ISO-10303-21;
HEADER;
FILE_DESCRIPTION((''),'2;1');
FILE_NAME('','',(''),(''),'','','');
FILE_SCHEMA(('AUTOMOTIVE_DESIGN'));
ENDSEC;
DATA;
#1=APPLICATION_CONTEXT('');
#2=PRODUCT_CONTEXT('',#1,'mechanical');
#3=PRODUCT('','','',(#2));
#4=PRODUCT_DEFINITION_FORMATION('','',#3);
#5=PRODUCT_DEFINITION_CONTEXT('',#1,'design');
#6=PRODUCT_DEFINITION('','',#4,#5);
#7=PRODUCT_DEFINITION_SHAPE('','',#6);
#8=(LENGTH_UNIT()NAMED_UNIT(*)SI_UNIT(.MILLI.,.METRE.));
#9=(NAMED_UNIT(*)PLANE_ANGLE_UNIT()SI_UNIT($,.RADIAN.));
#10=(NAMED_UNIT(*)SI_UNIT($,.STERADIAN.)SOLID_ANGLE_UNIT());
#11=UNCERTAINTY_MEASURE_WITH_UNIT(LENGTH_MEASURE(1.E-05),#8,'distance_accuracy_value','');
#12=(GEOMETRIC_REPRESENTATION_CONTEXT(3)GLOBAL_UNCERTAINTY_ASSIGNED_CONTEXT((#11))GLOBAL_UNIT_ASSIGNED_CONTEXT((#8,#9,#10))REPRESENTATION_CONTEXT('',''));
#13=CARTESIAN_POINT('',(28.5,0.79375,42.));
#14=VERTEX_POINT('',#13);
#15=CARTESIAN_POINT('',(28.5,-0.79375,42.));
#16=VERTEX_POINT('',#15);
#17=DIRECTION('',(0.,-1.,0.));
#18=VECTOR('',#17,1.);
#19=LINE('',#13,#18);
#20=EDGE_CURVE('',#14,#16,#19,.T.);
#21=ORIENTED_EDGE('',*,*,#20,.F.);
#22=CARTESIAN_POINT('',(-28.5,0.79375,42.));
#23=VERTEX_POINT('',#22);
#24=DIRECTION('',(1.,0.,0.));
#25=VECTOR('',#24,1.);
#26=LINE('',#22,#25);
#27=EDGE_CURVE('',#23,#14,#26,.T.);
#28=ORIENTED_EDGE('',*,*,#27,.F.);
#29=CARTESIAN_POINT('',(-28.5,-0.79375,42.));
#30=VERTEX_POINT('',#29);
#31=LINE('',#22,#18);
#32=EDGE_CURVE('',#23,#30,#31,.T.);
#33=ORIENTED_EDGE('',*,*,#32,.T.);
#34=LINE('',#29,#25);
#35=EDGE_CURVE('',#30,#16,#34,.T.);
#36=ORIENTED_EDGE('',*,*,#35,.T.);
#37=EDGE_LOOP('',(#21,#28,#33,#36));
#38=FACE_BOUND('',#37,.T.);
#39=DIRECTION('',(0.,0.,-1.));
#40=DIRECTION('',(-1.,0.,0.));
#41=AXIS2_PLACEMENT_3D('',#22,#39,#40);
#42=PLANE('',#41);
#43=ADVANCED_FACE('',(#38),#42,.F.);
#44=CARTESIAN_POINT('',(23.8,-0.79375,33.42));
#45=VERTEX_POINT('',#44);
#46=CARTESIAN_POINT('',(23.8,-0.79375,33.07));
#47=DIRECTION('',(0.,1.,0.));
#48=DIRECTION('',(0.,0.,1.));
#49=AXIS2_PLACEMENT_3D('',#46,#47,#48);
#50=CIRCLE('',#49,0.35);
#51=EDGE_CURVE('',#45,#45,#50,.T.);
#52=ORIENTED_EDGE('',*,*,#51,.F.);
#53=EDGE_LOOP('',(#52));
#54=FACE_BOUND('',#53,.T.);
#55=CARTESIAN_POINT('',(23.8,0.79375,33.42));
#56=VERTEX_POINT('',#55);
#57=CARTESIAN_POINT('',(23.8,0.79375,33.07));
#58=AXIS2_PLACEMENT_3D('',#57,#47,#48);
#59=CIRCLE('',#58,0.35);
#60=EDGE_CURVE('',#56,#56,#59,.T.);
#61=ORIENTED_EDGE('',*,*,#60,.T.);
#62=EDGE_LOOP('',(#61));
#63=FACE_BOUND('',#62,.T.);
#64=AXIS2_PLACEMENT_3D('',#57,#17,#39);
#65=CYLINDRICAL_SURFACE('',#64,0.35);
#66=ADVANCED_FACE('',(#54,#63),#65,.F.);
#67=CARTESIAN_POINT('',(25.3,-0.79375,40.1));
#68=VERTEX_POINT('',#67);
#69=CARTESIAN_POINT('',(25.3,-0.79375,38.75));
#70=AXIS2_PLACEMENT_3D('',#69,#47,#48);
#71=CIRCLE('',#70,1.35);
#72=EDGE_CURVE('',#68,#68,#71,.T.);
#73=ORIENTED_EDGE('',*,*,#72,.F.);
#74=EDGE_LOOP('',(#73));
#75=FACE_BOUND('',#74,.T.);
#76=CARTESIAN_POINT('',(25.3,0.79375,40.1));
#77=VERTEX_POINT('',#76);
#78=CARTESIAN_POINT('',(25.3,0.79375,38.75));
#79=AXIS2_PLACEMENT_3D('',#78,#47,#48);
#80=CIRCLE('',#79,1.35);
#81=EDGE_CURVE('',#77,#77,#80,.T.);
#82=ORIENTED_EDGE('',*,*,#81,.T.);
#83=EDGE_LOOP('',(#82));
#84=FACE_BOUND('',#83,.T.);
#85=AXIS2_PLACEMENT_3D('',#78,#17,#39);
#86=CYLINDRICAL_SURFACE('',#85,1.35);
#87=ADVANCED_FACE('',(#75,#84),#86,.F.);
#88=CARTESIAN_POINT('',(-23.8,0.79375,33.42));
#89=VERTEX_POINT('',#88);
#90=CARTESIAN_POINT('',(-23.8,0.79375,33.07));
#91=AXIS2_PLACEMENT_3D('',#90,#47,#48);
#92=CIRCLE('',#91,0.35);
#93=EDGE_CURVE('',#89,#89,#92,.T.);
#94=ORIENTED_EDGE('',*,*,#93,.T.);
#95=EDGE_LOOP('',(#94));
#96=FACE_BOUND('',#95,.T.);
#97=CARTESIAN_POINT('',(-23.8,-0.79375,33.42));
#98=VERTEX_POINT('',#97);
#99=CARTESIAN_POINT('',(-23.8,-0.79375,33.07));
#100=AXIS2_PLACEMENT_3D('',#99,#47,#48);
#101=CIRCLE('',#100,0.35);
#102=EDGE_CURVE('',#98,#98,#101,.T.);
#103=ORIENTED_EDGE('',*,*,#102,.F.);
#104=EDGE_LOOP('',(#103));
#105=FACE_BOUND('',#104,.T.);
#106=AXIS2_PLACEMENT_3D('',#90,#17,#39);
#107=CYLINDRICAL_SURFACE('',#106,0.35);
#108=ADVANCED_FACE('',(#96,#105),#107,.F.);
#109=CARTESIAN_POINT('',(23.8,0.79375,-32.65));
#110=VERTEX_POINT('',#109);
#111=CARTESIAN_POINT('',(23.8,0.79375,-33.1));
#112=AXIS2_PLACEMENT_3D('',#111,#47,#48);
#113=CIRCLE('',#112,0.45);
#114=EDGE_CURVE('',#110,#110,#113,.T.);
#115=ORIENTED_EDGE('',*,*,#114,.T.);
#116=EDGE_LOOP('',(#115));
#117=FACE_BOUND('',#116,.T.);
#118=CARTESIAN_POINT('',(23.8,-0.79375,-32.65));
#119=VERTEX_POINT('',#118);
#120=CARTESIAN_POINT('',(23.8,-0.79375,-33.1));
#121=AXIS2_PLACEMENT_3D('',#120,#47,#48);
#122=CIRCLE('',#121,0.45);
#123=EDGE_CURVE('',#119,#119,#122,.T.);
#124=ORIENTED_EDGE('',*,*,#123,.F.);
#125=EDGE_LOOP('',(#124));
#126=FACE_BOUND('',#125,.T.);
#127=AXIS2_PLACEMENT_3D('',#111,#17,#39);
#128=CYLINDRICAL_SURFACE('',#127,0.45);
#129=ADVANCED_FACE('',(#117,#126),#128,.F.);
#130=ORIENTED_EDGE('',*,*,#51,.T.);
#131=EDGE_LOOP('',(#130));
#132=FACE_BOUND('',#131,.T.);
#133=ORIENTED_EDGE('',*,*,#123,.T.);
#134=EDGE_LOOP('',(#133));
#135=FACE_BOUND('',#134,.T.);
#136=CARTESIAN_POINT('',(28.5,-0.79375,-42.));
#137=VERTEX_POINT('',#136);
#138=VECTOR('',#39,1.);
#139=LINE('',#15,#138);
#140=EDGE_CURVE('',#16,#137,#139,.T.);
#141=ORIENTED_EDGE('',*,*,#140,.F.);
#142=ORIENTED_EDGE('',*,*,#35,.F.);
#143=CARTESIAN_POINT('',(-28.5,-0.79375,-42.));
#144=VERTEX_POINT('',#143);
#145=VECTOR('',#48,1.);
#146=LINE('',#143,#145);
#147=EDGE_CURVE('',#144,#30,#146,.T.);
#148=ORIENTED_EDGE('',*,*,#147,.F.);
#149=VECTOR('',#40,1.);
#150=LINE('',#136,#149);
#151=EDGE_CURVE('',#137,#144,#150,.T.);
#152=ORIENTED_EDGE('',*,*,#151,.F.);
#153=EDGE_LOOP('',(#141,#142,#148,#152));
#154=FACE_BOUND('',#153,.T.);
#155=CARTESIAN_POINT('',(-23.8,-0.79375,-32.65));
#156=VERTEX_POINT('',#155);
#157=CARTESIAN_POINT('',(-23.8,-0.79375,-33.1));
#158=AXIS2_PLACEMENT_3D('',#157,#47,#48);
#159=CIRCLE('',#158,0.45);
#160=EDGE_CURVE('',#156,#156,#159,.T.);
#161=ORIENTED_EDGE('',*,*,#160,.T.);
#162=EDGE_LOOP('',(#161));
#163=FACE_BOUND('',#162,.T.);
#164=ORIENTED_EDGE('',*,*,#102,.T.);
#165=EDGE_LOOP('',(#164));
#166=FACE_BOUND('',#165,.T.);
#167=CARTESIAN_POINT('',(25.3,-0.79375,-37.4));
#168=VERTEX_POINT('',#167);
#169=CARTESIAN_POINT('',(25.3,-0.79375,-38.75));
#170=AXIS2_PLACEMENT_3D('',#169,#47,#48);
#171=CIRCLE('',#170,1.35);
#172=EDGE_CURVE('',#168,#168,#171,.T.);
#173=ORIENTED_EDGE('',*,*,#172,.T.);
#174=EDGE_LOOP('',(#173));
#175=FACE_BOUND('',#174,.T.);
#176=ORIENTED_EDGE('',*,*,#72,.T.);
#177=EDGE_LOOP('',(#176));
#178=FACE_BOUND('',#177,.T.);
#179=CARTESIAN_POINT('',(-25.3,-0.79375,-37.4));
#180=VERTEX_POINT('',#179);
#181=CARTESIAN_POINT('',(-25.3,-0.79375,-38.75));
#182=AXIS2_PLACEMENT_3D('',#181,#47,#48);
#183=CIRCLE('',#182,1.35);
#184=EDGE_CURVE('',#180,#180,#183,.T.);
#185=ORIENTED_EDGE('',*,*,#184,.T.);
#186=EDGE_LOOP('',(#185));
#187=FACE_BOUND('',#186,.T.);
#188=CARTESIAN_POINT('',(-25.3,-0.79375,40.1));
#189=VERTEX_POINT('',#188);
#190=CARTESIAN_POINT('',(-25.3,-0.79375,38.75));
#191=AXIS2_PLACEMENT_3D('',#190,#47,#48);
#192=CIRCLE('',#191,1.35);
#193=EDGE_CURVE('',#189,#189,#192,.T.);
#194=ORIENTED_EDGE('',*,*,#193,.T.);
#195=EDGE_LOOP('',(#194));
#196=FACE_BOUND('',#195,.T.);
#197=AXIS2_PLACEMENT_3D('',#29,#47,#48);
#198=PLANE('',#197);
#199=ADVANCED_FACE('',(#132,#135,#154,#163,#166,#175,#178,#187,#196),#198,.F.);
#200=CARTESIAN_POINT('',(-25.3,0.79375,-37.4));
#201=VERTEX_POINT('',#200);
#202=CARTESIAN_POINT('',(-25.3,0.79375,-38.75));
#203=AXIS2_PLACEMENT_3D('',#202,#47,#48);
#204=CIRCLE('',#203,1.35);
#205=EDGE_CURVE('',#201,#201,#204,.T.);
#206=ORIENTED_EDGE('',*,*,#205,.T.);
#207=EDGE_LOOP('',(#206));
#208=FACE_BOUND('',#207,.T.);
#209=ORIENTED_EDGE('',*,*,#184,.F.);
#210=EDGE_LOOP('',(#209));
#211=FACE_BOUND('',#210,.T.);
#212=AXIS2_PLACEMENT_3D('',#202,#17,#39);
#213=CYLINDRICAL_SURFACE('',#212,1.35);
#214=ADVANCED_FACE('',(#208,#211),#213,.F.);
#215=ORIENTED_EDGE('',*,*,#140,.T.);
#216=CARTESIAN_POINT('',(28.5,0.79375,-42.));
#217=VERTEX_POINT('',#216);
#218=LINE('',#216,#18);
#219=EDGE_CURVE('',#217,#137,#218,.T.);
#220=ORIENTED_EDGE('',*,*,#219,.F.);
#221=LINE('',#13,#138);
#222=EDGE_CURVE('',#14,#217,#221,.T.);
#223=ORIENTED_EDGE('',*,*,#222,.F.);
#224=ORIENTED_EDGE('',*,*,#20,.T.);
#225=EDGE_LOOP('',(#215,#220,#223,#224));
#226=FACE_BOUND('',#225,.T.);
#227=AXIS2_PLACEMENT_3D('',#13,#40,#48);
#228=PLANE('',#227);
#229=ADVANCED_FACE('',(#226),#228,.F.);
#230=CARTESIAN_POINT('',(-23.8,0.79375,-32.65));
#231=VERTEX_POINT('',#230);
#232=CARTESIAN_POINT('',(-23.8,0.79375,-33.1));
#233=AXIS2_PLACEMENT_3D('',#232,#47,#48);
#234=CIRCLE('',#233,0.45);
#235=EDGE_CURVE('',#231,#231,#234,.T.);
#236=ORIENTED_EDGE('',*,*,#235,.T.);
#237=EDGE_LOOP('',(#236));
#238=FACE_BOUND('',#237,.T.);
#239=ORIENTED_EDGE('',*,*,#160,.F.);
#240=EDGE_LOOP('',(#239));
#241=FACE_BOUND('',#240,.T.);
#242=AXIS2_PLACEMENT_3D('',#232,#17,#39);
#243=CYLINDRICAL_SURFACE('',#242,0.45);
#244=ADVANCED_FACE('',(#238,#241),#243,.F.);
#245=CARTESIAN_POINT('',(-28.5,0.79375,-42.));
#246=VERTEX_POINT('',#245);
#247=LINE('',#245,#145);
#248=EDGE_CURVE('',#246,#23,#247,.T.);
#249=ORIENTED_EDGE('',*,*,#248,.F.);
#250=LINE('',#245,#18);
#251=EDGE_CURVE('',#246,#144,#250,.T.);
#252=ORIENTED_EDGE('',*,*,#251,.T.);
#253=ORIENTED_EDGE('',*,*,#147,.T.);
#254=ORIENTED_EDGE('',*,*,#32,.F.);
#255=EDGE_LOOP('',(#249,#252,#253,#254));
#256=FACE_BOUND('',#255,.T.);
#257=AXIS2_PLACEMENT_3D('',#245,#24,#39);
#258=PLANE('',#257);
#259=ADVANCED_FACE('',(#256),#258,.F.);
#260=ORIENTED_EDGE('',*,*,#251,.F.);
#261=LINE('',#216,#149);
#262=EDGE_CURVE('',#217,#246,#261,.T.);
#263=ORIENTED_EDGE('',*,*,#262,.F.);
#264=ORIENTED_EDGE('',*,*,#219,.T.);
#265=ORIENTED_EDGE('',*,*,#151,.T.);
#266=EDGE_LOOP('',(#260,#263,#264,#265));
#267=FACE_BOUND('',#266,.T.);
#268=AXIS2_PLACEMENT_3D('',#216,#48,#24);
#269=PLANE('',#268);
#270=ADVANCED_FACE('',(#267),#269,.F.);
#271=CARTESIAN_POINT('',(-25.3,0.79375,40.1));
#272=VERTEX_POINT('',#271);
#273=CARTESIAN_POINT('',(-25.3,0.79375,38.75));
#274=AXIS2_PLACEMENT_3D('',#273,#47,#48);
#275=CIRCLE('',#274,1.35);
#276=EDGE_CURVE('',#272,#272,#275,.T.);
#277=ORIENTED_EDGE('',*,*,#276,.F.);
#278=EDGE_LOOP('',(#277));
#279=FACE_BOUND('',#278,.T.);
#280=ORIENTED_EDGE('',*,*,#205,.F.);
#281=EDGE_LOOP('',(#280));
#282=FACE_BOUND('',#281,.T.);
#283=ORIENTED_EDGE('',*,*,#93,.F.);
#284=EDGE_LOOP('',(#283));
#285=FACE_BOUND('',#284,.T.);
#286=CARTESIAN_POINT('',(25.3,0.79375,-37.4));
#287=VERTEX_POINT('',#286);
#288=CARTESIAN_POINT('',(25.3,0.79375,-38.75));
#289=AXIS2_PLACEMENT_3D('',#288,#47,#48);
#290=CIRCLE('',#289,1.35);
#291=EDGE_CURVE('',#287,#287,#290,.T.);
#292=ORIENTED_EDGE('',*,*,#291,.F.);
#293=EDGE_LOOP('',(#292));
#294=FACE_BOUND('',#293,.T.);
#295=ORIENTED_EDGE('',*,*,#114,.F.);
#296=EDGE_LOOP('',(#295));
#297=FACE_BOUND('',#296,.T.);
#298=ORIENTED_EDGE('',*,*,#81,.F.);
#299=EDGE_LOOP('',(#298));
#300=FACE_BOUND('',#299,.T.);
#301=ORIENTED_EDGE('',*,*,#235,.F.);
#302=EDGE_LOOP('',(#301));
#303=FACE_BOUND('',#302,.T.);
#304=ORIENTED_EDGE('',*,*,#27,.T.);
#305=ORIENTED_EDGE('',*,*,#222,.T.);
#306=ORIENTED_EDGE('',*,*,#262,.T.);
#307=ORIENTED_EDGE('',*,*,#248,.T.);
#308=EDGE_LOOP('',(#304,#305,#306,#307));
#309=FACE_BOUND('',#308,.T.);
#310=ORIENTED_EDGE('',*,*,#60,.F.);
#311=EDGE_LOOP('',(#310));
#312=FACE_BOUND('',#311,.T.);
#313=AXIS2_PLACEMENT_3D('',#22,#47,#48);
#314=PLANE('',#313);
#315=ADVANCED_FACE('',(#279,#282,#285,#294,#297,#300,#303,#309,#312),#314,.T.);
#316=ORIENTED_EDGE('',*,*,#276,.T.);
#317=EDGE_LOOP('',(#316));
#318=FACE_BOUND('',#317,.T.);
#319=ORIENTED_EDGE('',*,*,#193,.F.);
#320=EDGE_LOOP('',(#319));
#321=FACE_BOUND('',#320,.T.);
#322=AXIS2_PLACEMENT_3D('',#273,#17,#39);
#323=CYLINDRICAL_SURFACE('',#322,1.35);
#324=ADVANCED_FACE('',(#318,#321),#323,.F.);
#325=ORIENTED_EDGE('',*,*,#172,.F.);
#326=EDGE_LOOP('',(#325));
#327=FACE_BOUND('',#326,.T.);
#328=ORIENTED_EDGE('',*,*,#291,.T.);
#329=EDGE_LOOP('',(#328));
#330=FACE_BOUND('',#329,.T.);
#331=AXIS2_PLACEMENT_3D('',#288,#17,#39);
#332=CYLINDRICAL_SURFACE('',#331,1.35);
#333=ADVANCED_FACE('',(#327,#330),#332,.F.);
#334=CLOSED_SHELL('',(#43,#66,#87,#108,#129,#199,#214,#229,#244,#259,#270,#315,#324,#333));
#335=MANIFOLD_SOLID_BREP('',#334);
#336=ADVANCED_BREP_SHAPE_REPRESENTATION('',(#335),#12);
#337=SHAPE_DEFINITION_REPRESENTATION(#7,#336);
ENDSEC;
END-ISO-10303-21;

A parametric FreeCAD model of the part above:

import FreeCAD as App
import Part
import Sketcher

doc = App.newDocument("Part")
params = doc.addObject("Spreadsheet::Sheet", "Params")
for row, (alias, value) in enumerate([
    ("sketch1_diameter", "2.7 mm"),
    ("sketch1_diameter2", "0.7 mm"),
    ("sketch1_diameter3", "0.9 mm"),
    ("sketch1_width", "57 mm"),
    ("sketch1_height", "84 mm"),
    ("pad1_length", "1.5875 mm"),
], start=1):
    params.set(f"A{row}", alias)
    params.set(f"B{row}", "=" + value)
    params.setAlias(f"B{row}", alias)

body = doc.addObject("PartDesign::Body", "Body")

sketch1 = doc.addObject("Sketcher::SketchObject", "Sketch")
body.addObject(sketch1)
sketch1.AttachmentSupport = (doc.XZ_Plane, [""])
sketch1.MapMode = "FlatFace"
sketch1.addGeometry([
    Part.LineSegment(App.Vector(-28.5, -42, 0), App.Vector(-28.5, 42, 0)),
    Part.LineSegment(App.Vector(-28.5, 42, 0), App.Vector(28.5, 42, 0)),
    Part.LineSegment(App.Vector(28.5, 42, 0), App.Vector(28.5, -42, 0)),
    Part.LineSegment(App.Vector(28.5, -42, 0), App.Vector(-28.5, -42, 0)),
    Part.Circle(App.Vector(-25.3, 38.75, 0), App.Vector(0, 0, 1), 1.35),
    Part.Circle(App.Vector(-23.8, 33.07, 0), App.Vector(0, 0, 1), 0.35),
    Part.Circle(App.Vector(25.3, 38.75, 0), App.Vector(0, 0, 1), 1.35),
    Part.Circle(App.Vector(23.8, 33.07, 0), App.Vector(0, 0, 1), 0.35),
    Part.Circle(App.Vector(-23.8, -33.1, 0), App.Vector(0, 0, 1), 0.45),
    Part.Circle(App.Vector(-25.3, -38.75, 0), App.Vector(0, 0, 1), 1.35),
    Part.Circle(App.Vector(23.8, -33.1, 0), App.Vector(0, 0, 1), 0.45),
    Part.Circle(App.Vector(25.3, -38.75, 0), App.Vector(0, 0, 1), 1.35),
], False)
sketch1.addConstraint([
    Sketcher.Constraint("Coincident", 0, 2, 1, 1),
    Sketcher.Constraint("Coincident", 1, 2, 2, 1),
    Sketcher.Constraint("Coincident", 2, 2, 3, 1),
    Sketcher.Constraint("Coincident", 3, 2, 0, 1),
    Sketcher.Constraint("Vertical", 0),
    Sketcher.Constraint("Horizontal", 1),
    Sketcher.Constraint("Vertical", 2),
    Sketcher.Constraint("Horizontal", 3),
    Sketcher.Constraint("Equal", 4, 6),
    Sketcher.Constraint("Equal", 5, 7),
    Sketcher.Constraint("Equal", 6, 9),
    Sketcher.Constraint("Equal", 8, 10),
    Sketcher.Constraint("Equal", 9, 11),
    Sketcher.Constraint("Symmetric", 6, 3, 9, 3, -1, 1),
    Sketcher.Constraint("Symmetric", 4, 3, 11, 3, -1, 1),
    Sketcher.Constraint("Symmetric", 0, 2, 2, 2, -1, 1),
    Sketcher.Constraint("Symmetric", 4, 3, 6, 3, -2),
    Sketcher.Constraint("Symmetric", 5, 3, 7, 3, -2),
    Sketcher.Constraint("Symmetric", 8, 3, 10, 3, -2),
    Sketcher.Constraint("Vertical", 5, 3, 8, 3),
    Sketcher.Constraint("Diameter", 4, 2.7),
    Sketcher.Constraint("Diameter", 5, 0.7),
    Sketcher.Constraint("Diameter", 8, 0.9),
    Sketcher.Constraint("DistanceX", 1, 1, 1, 2, 57.0),
    Sketcher.Constraint("DistanceY", 0, 1, 0, 2, 84.0),
    Sketcher.Constraint("DistanceX", 4, 3, -1, 1, 25.3),
    Sketcher.Constraint("DistanceX", 5, 3, -1, 1, 23.8),
    Sketcher.Constraint("DistanceY", 8, 3, -1, 1, 33.1),
    Sketcher.Constraint("DistanceY", 9, 3, 4, 3, 77.5),
    Sketcher.Constraint("DistanceY", -1, 1, 5, 3, 33.07),
])
sketch1.setExpression("Constraints[20]", "Params.sketch1_diameter")
sketch1.setExpression("Constraints[21]", "Params.sketch1_diameter2")
sketch1.setExpression("Constraints[22]", "Params.sketch1_diameter3")
sketch1.setExpression("Constraints[23]", "Params.sketch1_width")
sketch1.setExpression("Constraints[24]", "Params.sketch1_height")
pad1 = doc.addObject("PartDesign::Pad", "Pad")
body.addObject(pad1)
pad1.Profile = sketch1
pad1.setExpression("Length", "Params.pad1_length")
pad1.Midplane = True

doc.recompute()
